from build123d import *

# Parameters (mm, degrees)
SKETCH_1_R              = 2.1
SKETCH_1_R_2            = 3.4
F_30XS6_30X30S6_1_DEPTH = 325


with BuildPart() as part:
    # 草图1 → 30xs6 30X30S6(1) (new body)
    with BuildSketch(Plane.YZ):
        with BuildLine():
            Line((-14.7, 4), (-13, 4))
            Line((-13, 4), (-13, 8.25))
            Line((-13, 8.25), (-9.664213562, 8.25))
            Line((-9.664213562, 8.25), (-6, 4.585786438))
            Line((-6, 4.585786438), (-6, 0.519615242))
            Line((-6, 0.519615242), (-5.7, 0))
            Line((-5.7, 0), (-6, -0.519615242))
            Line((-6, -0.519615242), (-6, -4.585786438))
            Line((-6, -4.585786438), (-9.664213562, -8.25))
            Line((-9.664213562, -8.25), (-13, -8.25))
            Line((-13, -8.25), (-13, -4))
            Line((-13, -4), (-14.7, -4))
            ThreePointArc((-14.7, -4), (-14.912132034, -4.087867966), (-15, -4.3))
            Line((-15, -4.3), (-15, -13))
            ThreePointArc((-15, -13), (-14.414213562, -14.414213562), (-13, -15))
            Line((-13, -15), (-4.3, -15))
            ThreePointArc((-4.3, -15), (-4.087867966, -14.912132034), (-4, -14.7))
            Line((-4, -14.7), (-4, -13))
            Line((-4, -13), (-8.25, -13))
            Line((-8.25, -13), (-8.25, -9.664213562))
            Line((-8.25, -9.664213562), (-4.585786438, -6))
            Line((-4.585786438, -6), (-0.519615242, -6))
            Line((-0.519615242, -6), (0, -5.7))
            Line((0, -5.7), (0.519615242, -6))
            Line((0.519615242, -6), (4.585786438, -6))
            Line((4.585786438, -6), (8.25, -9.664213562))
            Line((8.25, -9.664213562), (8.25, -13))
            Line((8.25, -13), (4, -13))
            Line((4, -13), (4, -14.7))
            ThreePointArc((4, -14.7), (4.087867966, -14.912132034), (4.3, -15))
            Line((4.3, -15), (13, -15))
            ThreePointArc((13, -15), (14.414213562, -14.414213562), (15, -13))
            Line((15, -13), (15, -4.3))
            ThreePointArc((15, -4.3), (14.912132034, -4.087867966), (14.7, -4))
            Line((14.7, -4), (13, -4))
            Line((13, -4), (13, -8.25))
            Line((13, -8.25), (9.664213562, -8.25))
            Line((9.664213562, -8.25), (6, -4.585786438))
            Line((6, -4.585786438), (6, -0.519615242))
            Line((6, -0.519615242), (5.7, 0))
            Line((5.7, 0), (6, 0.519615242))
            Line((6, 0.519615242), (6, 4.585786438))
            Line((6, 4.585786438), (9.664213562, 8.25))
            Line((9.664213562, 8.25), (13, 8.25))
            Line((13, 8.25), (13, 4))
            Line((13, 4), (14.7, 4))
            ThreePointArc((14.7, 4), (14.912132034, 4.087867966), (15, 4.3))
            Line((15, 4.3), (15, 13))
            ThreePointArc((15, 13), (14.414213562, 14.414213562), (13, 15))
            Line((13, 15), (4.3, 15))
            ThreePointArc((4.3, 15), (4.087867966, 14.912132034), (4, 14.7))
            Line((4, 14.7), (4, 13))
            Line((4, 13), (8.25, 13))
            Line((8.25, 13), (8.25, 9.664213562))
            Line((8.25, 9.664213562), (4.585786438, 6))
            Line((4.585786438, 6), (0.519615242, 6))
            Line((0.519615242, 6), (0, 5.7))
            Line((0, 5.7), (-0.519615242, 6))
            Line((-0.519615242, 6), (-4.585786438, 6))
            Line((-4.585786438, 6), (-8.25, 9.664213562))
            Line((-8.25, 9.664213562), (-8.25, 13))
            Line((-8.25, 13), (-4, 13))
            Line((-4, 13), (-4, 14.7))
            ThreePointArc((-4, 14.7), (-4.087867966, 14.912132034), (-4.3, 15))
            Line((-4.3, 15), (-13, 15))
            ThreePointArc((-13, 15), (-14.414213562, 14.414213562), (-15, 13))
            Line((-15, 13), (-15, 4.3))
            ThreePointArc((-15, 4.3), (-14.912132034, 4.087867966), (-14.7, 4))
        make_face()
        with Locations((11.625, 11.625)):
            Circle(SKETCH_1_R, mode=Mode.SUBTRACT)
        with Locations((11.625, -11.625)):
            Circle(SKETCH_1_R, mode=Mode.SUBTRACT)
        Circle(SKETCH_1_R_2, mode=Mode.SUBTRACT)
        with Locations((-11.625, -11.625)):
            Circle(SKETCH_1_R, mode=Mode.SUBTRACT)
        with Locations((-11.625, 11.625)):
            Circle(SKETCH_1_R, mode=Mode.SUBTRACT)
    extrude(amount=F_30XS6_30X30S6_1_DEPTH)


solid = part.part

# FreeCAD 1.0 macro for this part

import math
import FreeCAD as App
import Part
import Sketcher
Q = App.Units.Quantity

doc = App.newDocument("Part")
body = doc.addObject("PartDesign::Body", "Body")

sketch1 = body.newObject("Sketcher::SketchObject", "Sketch")
sketch1.AttachmentSupport = (doc.getObject("YZ_Plane"), [""])
sketch1.MapMode = "FlatFace"
sketch1.addGeometry(Part.LineSegment(App.Vector(-14.7, 4, 0), App.Vector(-13, 4, 0)), False)
sketch1.addGeometry(Part.LineSegment(App.Vector(-13, 4, 0), App.Vector(-13, 8.25, 0)), False)
sketch1.addGeometry(Part.LineSegment(App.Vector(-13, 8.25, 0), App.Vector(-9.66, 8.25, 0)), False)
sketch1.addGeometry(Part.LineSegment(App.Vector(-9.66, 8.25, 0), App.Vector(-6, 4.59, 0)), False)
sketch1.addGeometry(Part.LineSegment(App.Vector(-6, 4.59, 0), App.Vector(-6, 0.52, 0)), False)
sketch1.addGeometry(Part.LineSegment(App.Vector(-6, 0.52, 0), App.Vector(-5.7, 0, 0)), False)
sketch1.addGeometry(Part.LineSegment(App.Vector(-5.7, 0, 0), App.Vector(-6, -0.52, 0)), False)
sketch1.addGeometry(Part.LineSegment(App.Vector(-6, -0.52, 0), App.Vector(-6, -4.59, 0)), False)
sketch1.addGeometry(Part.LineSegment(App.Vector(-6, -4.59, 0), App.Vector(-9.66, -8.25, 0)), False)
sketch1.addGeometry(Part.LineSegment(App.Vector(-9.66, -8.25, 0), App.Vector(-13, -8.25, 0)), False)
sketch1.addGeometry(Part.LineSegment(App.Vector(-13, -8.25, 0), App.Vector(-13, -4, 0)), False)
sketch1.addGeometry(Part.LineSegment(App.Vector(-13, -4, 0), App.Vector(-14.7, -4, 0)), False)
sketch1.addGeometry(Part.ArcOfCircle(Part.Circle(App.Vector(-14.7, -4.3, 0), App.Vector(0, 0, 1), 0.3), math.radians(90), math.radians(180)), False)
sketch1.addGeometry(Part.LineSegment(App.Vector(-15, -4.3, 0), App.Vector(-15, -13, 0)), False)
sketch1.addGeometry(Part.ArcOfCircle(Part.Circle(App.Vector(-13, -13, 0), App.Vector(0, 0, 1), 2), math.radians(-180), math.radians(-90)), False)
sketch1.addGeometry(Part.LineSegment(App.Vector(-13, -15, 0), App.Vector(-4.3, -15, 0)), False)
sketch1.addGeometry(Part.ArcOfCircle(Part.Circle(App.Vector(-4.3, -14.7, 0), App.Vector(0, 0, 1), 0.3), math.radians(-90), math.radians(0)), False)
sketch1.addGeometry(Part.LineSegment(App.Vector(-4, -14.7, 0), App.Vector(-4, -13, 0)), False)
sketch1.addGeometry(Part.LineSegment(App.Vector(-4, -13, 0), App.Vector(-8.25, -13, 0)), False)
sketch1.addGeometry(Part.LineSegment(App.Vector(-8.25, -13, 0), App.Vector(-8.25, -9.66, 0)), False)
sketch1.addGeometry(Part.LineSegment(App.Vector(-8.25, -9.66, 0), App.Vector(-4.59, -6, 0)), False)
sketch1.addGeometry(Part.LineSegment(App.Vector(-4.59, -6, 0), App.Vector(-0.52, -6, 0)), False)
sketch1.addGeometry(Part.LineSegment(App.Vector(-0.52, -6, 0), App.Vector(0, -5.7, 0)), False)
sketch1.addGeometry(Part.LineSegment(App.Vector(0, -5.7, 0), App.Vector(0.52, -6, 0)), False)
sketch1.addGeometry(Part.LineSegment(App.Vector(0.52, -6, 0), App.Vector(4.59, -6, 0)), False)
sketch1.addGeometry(Part.LineSegment(App.Vector(4.59, -6, 0), App.Vector(8.25, -9.66, 0)), False)
sketch1.addGeometry(Part.LineSegment(App.Vector(8.25, -9.66, 0), App.Vector(8.25, -13, 0)), False)
sketch1.addGeometry(Part.LineSegment(App.Vector(8.25, -13, 0), App.Vector(4, -13, 0)), False)
sketch1.addGeometry(Part.LineSegment(App.Vector(4, -13, 0), App.Vector(4, -14.7, 0)), False)
sketch1.addGeometry(Part.ArcOfCircle(Part.Circle(App.Vector(4.3, -14.7, 0), App.Vector(0, 0, 1), 0.3), math.radians(-180), math.radians(-90)), False)
sketch1.addGeometry(Part.LineSegment(App.Vector(4.3, -15, 0), App.Vector(13, -15, 0)), False)
sketch1.addGeometry(Part.ArcOfCircle(Part.Circle(App.Vector(13, -13, 0), App.Vector(0, 0, 1), 2), math.radians(-90), math.radians(0)), False)
sketch1.addGeometry(Part.LineSegment(App.Vector(15, -13, 0), App.Vector(15, -4.3, 0)), False)
sketch1.addGeometry(Part.ArcOfCircle(Part.Circle(App.Vector(14.7, -4.3, 0), App.Vector(0, 0, 1), 0.3), math.radians(0), math.radians(90)), False)
sketch1.addGeometry(Part.LineSegment(App.Vector(14.7, -4, 0), App.Vector(13, -4, 0)), False)
sketch1.addGeometry(Part.LineSegment(App.Vector(13, -4, 0), App.Vector(13, -8.25, 0)), False)
sketch1.addGeometry(Part.LineSegment(App.Vector(13, -8.25, 0), App.Vector(9.66, -8.25, 0)), False)
sketch1.addGeometry(Part.LineSegment(App.Vector(9.66, -8.25, 0), App.Vector(6, -4.59, 0)), False)
sketch1.addGeometry(Part.LineSegment(App.Vector(6, -4.59, 0), App.Vector(6, -0.52, 0)), False)
sketch1.addGeometry(Part.LineSegment(App.Vector(6, -0.52, 0), App.Vector(5.7, 0, 0)), False)
sketch1.addGeometry(Part.LineSegment(App.Vector(5.7, 0, 0), App.Vector(6, 0.52, 0)), False)
sketch1.addGeometry(Part.LineSegment(App.Vector(6, 0.52, 0), App.Vector(6, 4.59, 0)), False)
sketch1.addGeometry(Part.LineSegment(App.Vector(6, 4.59, 0), App.Vector(9.66, 8.25, 0)), False)
sketch1.addGeometry(Part.LineSegment(App.Vector(9.66, 8.25, 0), App.Vector(13, 8.25, 0)), False)
sketch1.addGeometry(Part.LineSegment(App.Vector(13, 8.25, 0), App.Vector(13, 4, 0)), False)
sketch1.addGeometry(Part.LineSegment(App.Vector(13, 4, 0), App.Vector(14.7, 4, 0)), False)
sketch1.addGeometry(Part.ArcOfCircle(Part.Circle(App.Vector(14.7, 4.3, 0), App.Vector(0, 0, 1), 0.3), math.radians(-90), math.radians(0)), False)
sketch1.addGeometry(Part.LineSegment(App.Vector(15, 4.3, 0), App.Vector(15, 13, 0)), False)
sketch1.addGeometry(Part.ArcOfCircle(Part.Circle(App.Vector(13, 13, 0), App.Vector(0, 0, 1), 2), math.radians(0), math.radians(90)), False)
sketch1.addGeometry(Part.LineSegment(App.Vector(13, 15, 0), App.Vector(4.3, 15, 0)), False)
sketch1.addGeometry(Part.ArcOfCircle(Part.Circle(App.Vector(4.3, 14.7, 0), App.Vector(0, 0, 1), 0.3), math.radians(90), math.radians(180)), False)
sketch1.addGeometry(Part.LineSegment(App.Vector(4, 14.7, 0), App.Vector(4, 13, 0)), False)
sketch1.addGeometry(Part.LineSegment(App.Vector(4, 13, 0), App.Vector(8.25, 13, 0)), False)
sketch1.addGeometry(Part.LineSegment(App.Vector(8.25, 13, 0), App.Vector(8.25, 9.66, 0)), False)
sketch1.addGeometry(Part.LineSegment(App.Vector(8.25, 9.66, 0), App.Vector(4.59, 6, 0)), False)
sketch1.addGeometry(Part.LineSegment(App.Vector(4.59, 6, 0), App.Vector(0.52, 6, 0)), False)
sketch1.addGeometry(Part.LineSegment(App.Vector(0.52, 6, 0), App.Vector(0, 5.7, 0)), False)
sketch1.addGeometry(Part.LineSegment(App.Vector(0, 5.7, 0), App.Vector(-0.52, 6, 0)), False)
sketch1.addGeometry(Part.LineSegment(App.Vector(-0.52, 6, 0), App.Vector(-4.59, 6, 0)), False)
sketch1.addGeometry(Part.LineSegment(App.Vector(-4.59, 6, 0), App.Vector(-8.25, 9.66, 0)), False)
sketch1.addGeometry(Part.LineSegment(App.Vector(-8.25, 9.66, 0), App.Vector(-8.25, 13, 0)), False)
sketch1.addGeometry(Part.LineSegment(App.Vector(-8.25, 13, 0), App.Vector(-4, 13, 0)), False)
sketch1.addGeometry(Part.LineSegment(App.Vector(-4, 13, 0), App.Vector(-4, 14.7, 0)), False)
sketch1.addGeometry(Part.ArcOfCircle(Part.Circle(App.Vector(-4.3, 14.7, 0), App.Vector(0, 0, 1), 0.3), math.radians(0), math.radians(90)), False)
sketch1.addGeometry(Part.LineSegment(App.Vector(-4.3, 15, 0), App.Vector(-13, 15, 0)), False)
sketch1.addGeometry(Part.ArcOfCircle(Part.Circle(App.Vector(-13, 13, 0), App.Vector(0, 0, 1), 2), math.radians(90), math.radians(180)), False)
sketch1.addGeometry(Part.LineSegment(App.Vector(-15, 13, 0), App.Vector(-15, 4.3, 0)), False)
sketch1.addGeometry(Part.ArcOfCircle(Part.Circle(App.Vector(-14.7, 4.3, 0), App.Vector(0, 0, 1), 0.3), math.radians(-180), math.radians(-90)), False)
sketch1.addGeometry(Part.Circle(App.Vector(-11.62, -11.62, 0), App.Vector(0, 0, 1), 2.1), False)
sketch1.addGeometry(Part.Circle(App.Vector(11.62, -11.62, 0), App.Vector(0, 0, 1), 2.1), False)
sketch1.addGeometry(Part.Circle(App.Vector(-11.62, 11.62, 0), App.Vector(0, 0, 1), 2.1), False)
sketch1.addGeometry(Part.Circle(App.Vector(0, 0, 0), App.Vector(0, 0, 1), 3.4), False)
sketch1.addGeometry(Part.Circle(App.Vector(11.62, 11.62, 0), App.Vector(0, 0, 1), 2.1), False)
sketch1.addConstraint(Sketcher.Constraint("Coincident", 0, 2, 1, 1))
sketch1.addConstraint(Sketcher.Constraint("Coincident", 1, 2, 2, 1))
sketch1.addConstraint(Sketcher.Constraint("Coincident", 2, 2, 3, 1))
sketch1.addConstraint(Sketcher.Constraint("Coincident", 3, 2, 4, 1))
sketch1.addConstraint(Sketcher.Constraint("Coincident", 4, 2, 5, 1))
sketch1.addConstraint(Sketcher.Constraint("Coincident", 5, 2, 6, 1))
sketch1.addConstraint(Sketcher.Constraint("Coincident", 6, 2, 7, 1))
sketch1.addConstraint(Sketcher.Constraint("Coincident", 7, 2, 8, 1))
sketch1.addConstraint(Sketcher.Constraint("Coincident", 8, 2, 9, 1))
sketch1.addConstraint(Sketcher.Constraint("Coincident", 9, 2, 10, 1))
sketch1.addConstraint(Sketcher.Constraint("Coincident", 10, 2, 11, 1))
sketch1.addConstraint(Sketcher.Constraint("Tangent", 11, 2, 12, 1))
sketch1.addConstraint(Sketcher.Constraint("Tangent", 12, 2, 13, 1))
sketch1.addConstraint(Sketcher.Constraint("Tangent", 13, 2, 14, 1))
sketch1.addConstraint(Sketcher.Constraint("Tangent", 14, 2, 15, 1))
sketch1.addConstraint(Sketcher.Constraint("Tangent", 15, 2, 16, 1))
sketch1.addConstraint(Sketcher.Constraint("Tangent", 16, 2, 17, 1))
sketch1.addConstraint(Sketcher.Constraint("Coincident", 17, 2, 18, 1))
sketch1.addConstraint(Sketcher.Constraint("Coincident", 18, 2, 19, 1))
sketch1.addConstraint(Sketcher.Constraint("Coincident", 19, 2, 20, 1))
sketch1.addConstraint(Sketcher.Constraint("Coincident", 20, 2, 21, 1))
sketch1.addConstraint(Sketcher.Constraint("Coincident", 21, 2, 22, 1))
sketch1.addConstraint(Sketcher.Constraint("Coincident", 22, 2, 23, 1))
sketch1.addConstraint(Sketcher.Constraint("Coincident", 23, 2, 24, 1))
sketch1.addConstraint(Sketcher.Constraint("Coincident", 24, 2, 25, 1))
sketch1.addConstraint(Sketcher.Constraint("Coincident", 25, 2, 26, 1))
sketch1.addConstraint(Sketcher.Constraint("Coincident", 26, 2, 27, 1))
sketch1.addConstraint(Sketcher.Constraint("Coincident", 27, 2, 28, 1))
sketch1.addConstraint(Sketcher.Constraint("Tangent", 28, 2, 29, 1))
sketch1.addConstraint(Sketcher.Constraint("Tangent", 29, 2, 30, 1))
sketch1.addConstraint(Sketcher.Constraint("Tangent", 30, 2, 31, 1))
sketch1.addConstraint(Sketcher.Constraint("Tangent", 31, 2, 32, 1))
sketch1.addConstraint(Sketcher.Constraint("Tangent", 32, 2, 33, 1))
sketch1.addConstraint(Sketcher.Constraint("Tangent", 33, 2, 34, 1))
sketch1.addConstraint(Sketcher.Constraint("Coincident", 34, 2, 35, 1))
sketch1.addConstraint(Sketcher.Constraint("Coincident", 35, 2, 36, 1))
sketch1.addConstraint(Sketcher.Constraint("Coincident", 36, 2, 37, 1))
sketch1.addConstraint(Sketcher.Constraint("Coincident", 37, 2, 38, 1))
sketch1.addConstraint(Sketcher.Constraint("Coincident", 38, 2, 39, 1))
sketch1.addConstraint(Sketcher.Constraint("Coincident", 39, 2, 40, 1))
sketch1.addConstraint(Sketcher.Constraint("Coincident", 40, 2, 41, 1))
sketch1.addConstraint(Sketcher.Constraint("Coincident", 41, 2, 42, 1))
sketch1.addConstraint(Sketcher.Constraint("Coincident", 42, 2, 43, 1))
sketch1.addConstraint(Sketcher.Constraint("Coincident", 43, 2, 44, 1))
sketch1.addConstraint(Sketcher.Constraint("Coincident", 44, 2, 45, 1))
sketch1.addConstraint(Sketcher.Constraint("Tangent", 45, 2, 46, 1))
sketch1.addConstraint(Sketcher.Constraint("Tangent", 46, 2, 47, 1))
sketch1.addConstraint(Sketcher.Constraint("Tangent", 47, 2, 48, 1))
sketch1.addConstraint(Sketcher.Constraint("Tangent", 48, 2, 49, 1))
sketch1.addConstraint(Sketcher.Constraint("Tangent", 49, 2, 50, 1))
sketch1.addConstraint(Sketcher.Constraint("Tangent", 50, 2, 51, 1))
sketch1.addConstraint(Sketcher.Constraint("Coincident", 51, 2, 52, 1))
sketch1.addConstraint(Sketcher.Constraint("Coincident", 52, 2, 53, 1))
sketch1.addConstraint(Sketcher.Constraint("Coincident", 53, 2, 54, 1))
sketch1.addConstraint(Sketcher.Constraint("Coincident", 54, 2, 55, 1))
sketch1.addConstraint(Sketcher.Constraint("Coincident", 55, 2, 56, 1))
sketch1.addConstraint(Sketcher.Constraint("Coincident", 56, 2, 57, 1))
sketch1.addConstraint(Sketcher.Constraint("Coincident", 57, 2, 58, 1))
sketch1.addConstraint(Sketcher.Constraint("Coincident", 58, 2, 59, 1))
sketch1.addConstraint(Sketcher.Constraint("Coincident", 59, 2, 60, 1))
sketch1.addConstraint(Sketcher.Constraint("Coincident", 60, 2, 61, 1))
sketch1.addConstraint(Sketcher.Constraint("Coincident", 61, 2, 62, 1))
sketch1.addConstraint(Sketcher.Constraint("Tangent", 62, 2, 63, 1))
sketch1.addConstraint(Sketcher.Constraint("Tangent", 63, 2, 64, 1))
sketch1.addConstraint(Sketcher.Constraint("Tangent", 64, 2, 65, 1))
sketch1.addConstraint(Sketcher.Constraint("Tangent", 65, 2, 66, 1))
sketch1.addConstraint(Sketcher.Constraint("Tangent", 66, 2, 67, 1))
sketch1.addConstraint(Sketcher.Constraint("Tangent", 67, 2, 0, 1))
sketch1.addConstraint(Sketcher.Constraint("Horizontal", 0))
sketch1.addConstraint(Sketcher.Constraint("Vertical", 1))
sketch1.addConstraint(Sketcher.Constraint("Horizontal", 2))
sketch1.addConstraint(Sketcher.Constraint("Vertical", 4))
sketch1.addConstraint(Sketcher.Constraint("Vertical", 7))
sketch1.addConstraint(Sketcher.Constraint("Horizontal", 9))
sketch1.addConstraint(Sketcher.Constraint("Vertical", 10))
sketch1.addConstraint(Sketcher.Constraint("Horizontal", 11))
sketch1.addConstraint(Sketcher.Constraint("Vertical", 13))
sketch1.addConstraint(Sketcher.Constraint("Horizontal", 15))
sketch1.addConstraint(Sketcher.Constraint("Vertical", 17))
sketch1.addConstraint(Sketcher.Constraint("Horizontal", 18))
sketch1.addConstraint(Sketcher.Constraint("Vertical", 19))
sketch1.addConstraint(Sketcher.Constraint("Horizontal", 21))
sketch1.addConstraint(Sketcher.Constraint("Horizontal", 24))
sketch1.addConstraint(Sketcher.Constraint("Vertical", 26))
sketch1.addConstraint(Sketcher.Constraint("Horizontal", 27))
sketch1.addConstraint(Sketcher.Constraint("Vertical", 28))
sketch1.addConstraint(Sketcher.Constraint("Horizontal", 30))
sketch1.addConstraint(Sketcher.Constraint("Vertical", 32))
sketch1.addConstraint(Sketcher.Constraint("Horizontal", 34))
sketch1.addConstraint(Sketcher.Constraint("Vertical", 35))
sketch1.addConstraint(Sketcher.Constraint("Horizontal", 36))
sketch1.addConstraint(Sketcher.Constraint("Vertical", 38))
sketch1.addConstraint(Sketcher.Constraint("Vertical", 41))
sketch1.addConstraint(Sketcher.Constraint("Horizontal", 43))
sketch1.addConstraint(Sketcher.Constraint("Vertical", 44))
sketch1.addConstraint(Sketcher.Constraint("Horizontal", 45))
sketch1.addConstraint(Sketcher.Constraint("Vertical", 47))
sketch1.addConstraint(Sketcher.Constraint("Horizontal", 49))
sketch1.addConstraint(Sketcher.Constraint("Vertical", 51))
sketch1.addConstraint(Sketcher.Constraint("Horizontal", 52))
sketch1.addConstraint(Sketcher.Constraint("Vertical", 53))
sketch1.addConstraint(Sketcher.Constraint("Horizontal", 55))
sketch1.addConstraint(Sketcher.Constraint("Horizontal", 58))
sketch1.addConstraint(Sketcher.Constraint("Vertical", 60))
sketch1.addConstraint(Sketcher.Constraint("Horizontal", 61))
sketch1.addConstraint(Sketcher.Constraint("Vertical", 62))
sketch1.addConstraint(Sketcher.Constraint("Horizontal", 64))
sketch1.addConstraint(Sketcher.Constraint("Vertical", 66))
sketch1.addConstraint(Sketcher.Constraint("Coincident", 71, 3, -1, 1))
sketch1.addConstraint(Sketcher.Constraint("Equal", 12, 16))
sketch1.addConstraint(Sketcher.Constraint("Equal", 16, 29))
sketch1.addConstraint(Sketcher.Constraint("Equal", 14, 31))
sketch1.addConstraint(Sketcher.Constraint("Equal", 29, 33))
sketch1.addConstraint(Sketcher.Constraint("Equal", 33, 46))
sketch1.addConstraint(Sketcher.Constraint("Equal", 31, 48))
sketch1.addConstraint(Sketcher.Constraint("Equal", 46, 50))
sketch1.addConstraint(Sketcher.Constraint("Equal", 50, 63))
sketch1.addConstraint(Sketcher.Constraint("Equal", 48, 65))
sketch1.addConstraint(Sketcher.Constraint("Equal", 63, 67))
sketch1.addConstraint(Sketcher.Constraint("Equal", 68, 69))
sketch1.addConstraint(Sketcher.Constraint("Equal", 69, 70))
sketch1.addConstraint(Sketcher.Constraint("Equal", 70, 72))
sketch1.addConstraint(Sketcher.Constraint("Symmetric", 12, 3, 46, 3, -1, 1))
sketch1.addConstraint(Sketcher.Constraint("Symmetric", 16, 3, 50, 3, -1, 1))
sketch1.addConstraint(Sketcher.Constraint("Symmetric", 29, 3, 63, 3, -1, 1))
sketch1.addConstraint(Sketcher.Constraint("Symmetric", 33, 3, 67, 3, -1, 1))
sketch1.addConstraint(Sketcher.Constraint("Symmetric", 69, 3, 70, 3, -1, 1))
sketch1.addConstraint(Sketcher.Constraint("Symmetric", 68, 3, 72, 3, -1, 1))
sketch1.addConstraint(Sketcher.Constraint("Symmetric", 1, 2, 35, 2, -1, 1))
sketch1.addConstraint(Sketcher.Constraint("Symmetric", 3, 2, 37, 2, -1, 1))
sketch1.addConstraint(Sketcher.Constraint("Symmetric", 5, 2, 39, 2, -1, 1))
sketch1.addConstraint(Sketcher.Constraint("Symmetric", 6, 2, 40, 2, -1, 1))
sketch1.addConstraint(Sketcher.Constraint("Symmetric", 8, 2, 42, 2, -1, 1))
sketch1.addConstraint(Sketcher.Constraint("Symmetric", 18, 2, 52, 2, -1, 1))
sketch1.addConstraint(Sketcher.Constraint("Symmetric", 20, 2, 54, 2, -1, 1))
sketch1.addConstraint(Sketcher.Constraint("Symmetric", 22, 2, 56, 2, -1, 1))
sketch1.addConstraint(Sketcher.Constraint("Symmetric", 23, 2, 57, 2, -1, 1))
sketch1.addConstraint(Sketcher.Constraint("Symmetric", 25, 2, 59, 2, -1, 1))
sketch1.addConstraint(Sketcher.Constraint("Symmetric", 16, 3, 29, 3, -2))
sketch1.addConstraint(Sketcher.Constraint("Symmetric", 12, 3, 33, 3, -2))
sketch1.addConstraint(Sketcher.Constraint("Symmetric", 68, 3, 69, 3, -2))
sketch1.addConstraint(Sketcher.Constraint("Symmetric", 21, 2, 23, 2, -2))
sketch1.addConstraint(Sketcher.Constraint("Symmetric", 19, 2, 25, 2, -2))
sketch1.addConstraint(Sketcher.Constraint("Symmetric", 9, 2, 35, 2, -2))
sketch1.addConstraint(Sketcher.Constraint("Symmetric", 7, 2, 37, 2, -2))
sketch1.addConstraint(Sketcher.Constraint("PointOnObject", 5, 2, -1))
sketch1.addConstraint(Sketcher.Constraint("PointOnObject", 22, 2, -2))
sketch1.addConstraint(Sketcher.Constraint("Perpendicular", 3, 8))
sketch1.addConstraint(Sketcher.Constraint("Parallel", 8, 20))
sketch1.addConstraint(Sketcher.Constraint("Perpendicular", 5, 22))
sketch1.addConstraint(Sketcher.Constraint("Perpendicular", 6, 23))
sketch1.addConstraint(Sketcher.Constraint("Perpendicular", 20, 25))
sketch1.addConstraint(Sketcher.Constraint("Parallel", 25, 37))
sketch1.addConstraint(Sketcher.Constraint("Perpendicular", 22, 39))
sketch1.addConstraint(Sketcher.Constraint("Perpendicular", 37, 42))
sketch1.addConstraint(Sketcher.Constraint("Parallel", 42, 54))
sketch1.addConstraint(Sketcher.Constraint("Perpendicular", 39, 56))
sketch1.addConstraint(Sketcher.Constraint("Perpendicular", 54, 59))
sketch1.addConstraint(Sketcher.Constraint("Horizontal", 13, 2, 17, 2))
sketch1.addConstraint(Sketcher.Constraint("Horizontal", 18, 2, 26, 2))
sketch1.addConstraint(Sketcher.Constraint("Horizontal", 52, 2, 60, 2))
sketch1.addConstraint(Sketcher.Constraint("Vertical", 65, 3, 0, 2))
sketch1.addConstraint(Sketcher.Constraint("Vertical", 2, 2, 8, 2))
sketch1.addConstraint(Sketcher.Constraint("Vertical", 35, 2, 43, 2))
sketch1.addConstraint(Sketcher.Constraint("Equal", 61, 1))
sketch1.addConstraint(Sketcher.Constraint("Equal", 58, 4))
sketch1.addConstraint(Sketcher.Constraint("Equal", 64, 13))
sketch1.addConstraint(Sketcher.Constraint("Equal", 43, 19))
sketch1.addConstraint(Sketcher.Constraint("Equal", 8, 20))
sketch1.addConstraint(Sketcher.Constraint("Equal", 6, 22))
sketch1.addConstraint(Sketcher.Constraint("Radius", 14, Q("2 mm")))
sketch1.addConstraint(Sketcher.Constraint("Diameter", 68, Q("4.2 mm")))
sketch1.addConstraint(Sketcher.Constraint("Diameter", 71, Q("6.8 mm")))
sketch1.addConstraint(Sketcher.Constraint("Radius", 12, Q("0.3 mm")))
sketch1.addConstraint(Sketcher.Constraint("Angle", 5, Q("-60 deg")))
sketch1.addConstraint(Sketcher.Constraint("DistanceX", 15, 1, 15, 2, Q("8.7 mm")))
sketch1.addConstraint(Sketcher.Constraint("DistanceX", 14, 3, -1, 1, Q("13 mm")))
sketch1.addConstraint(Sketcher.Constraint("DistanceX", 3, 2, -1, 1, Q("6 mm")))
sketch1.addConstraint(Sketcher.Constraint("Distance", 5, Q("0.6 mm")))
sketch1.addConstraint(Sketcher.Constraint("DistanceX", 18, 2, 18, 1, Q("4.25 mm")))
sketch1.addConstraint(Sketcher.Constraint("DistanceX", 68, 3, -1, 1, Q("11.625 mm")))
sketch1.addConstraint(Sketcher.Constraint("DistanceY", 68, 3, -1, 1, Q("11.625 mm")))
sketch1.addConstraint(Sketcher.Constraint("DistanceX", 21, 1, 21, 2, Q("4.066171 mm")))
pad1 = body.newObject("PartDesign::Pad", "Pad")
pad1.Profile = sketch1
pad1.Length = 325

doc.recompute()
